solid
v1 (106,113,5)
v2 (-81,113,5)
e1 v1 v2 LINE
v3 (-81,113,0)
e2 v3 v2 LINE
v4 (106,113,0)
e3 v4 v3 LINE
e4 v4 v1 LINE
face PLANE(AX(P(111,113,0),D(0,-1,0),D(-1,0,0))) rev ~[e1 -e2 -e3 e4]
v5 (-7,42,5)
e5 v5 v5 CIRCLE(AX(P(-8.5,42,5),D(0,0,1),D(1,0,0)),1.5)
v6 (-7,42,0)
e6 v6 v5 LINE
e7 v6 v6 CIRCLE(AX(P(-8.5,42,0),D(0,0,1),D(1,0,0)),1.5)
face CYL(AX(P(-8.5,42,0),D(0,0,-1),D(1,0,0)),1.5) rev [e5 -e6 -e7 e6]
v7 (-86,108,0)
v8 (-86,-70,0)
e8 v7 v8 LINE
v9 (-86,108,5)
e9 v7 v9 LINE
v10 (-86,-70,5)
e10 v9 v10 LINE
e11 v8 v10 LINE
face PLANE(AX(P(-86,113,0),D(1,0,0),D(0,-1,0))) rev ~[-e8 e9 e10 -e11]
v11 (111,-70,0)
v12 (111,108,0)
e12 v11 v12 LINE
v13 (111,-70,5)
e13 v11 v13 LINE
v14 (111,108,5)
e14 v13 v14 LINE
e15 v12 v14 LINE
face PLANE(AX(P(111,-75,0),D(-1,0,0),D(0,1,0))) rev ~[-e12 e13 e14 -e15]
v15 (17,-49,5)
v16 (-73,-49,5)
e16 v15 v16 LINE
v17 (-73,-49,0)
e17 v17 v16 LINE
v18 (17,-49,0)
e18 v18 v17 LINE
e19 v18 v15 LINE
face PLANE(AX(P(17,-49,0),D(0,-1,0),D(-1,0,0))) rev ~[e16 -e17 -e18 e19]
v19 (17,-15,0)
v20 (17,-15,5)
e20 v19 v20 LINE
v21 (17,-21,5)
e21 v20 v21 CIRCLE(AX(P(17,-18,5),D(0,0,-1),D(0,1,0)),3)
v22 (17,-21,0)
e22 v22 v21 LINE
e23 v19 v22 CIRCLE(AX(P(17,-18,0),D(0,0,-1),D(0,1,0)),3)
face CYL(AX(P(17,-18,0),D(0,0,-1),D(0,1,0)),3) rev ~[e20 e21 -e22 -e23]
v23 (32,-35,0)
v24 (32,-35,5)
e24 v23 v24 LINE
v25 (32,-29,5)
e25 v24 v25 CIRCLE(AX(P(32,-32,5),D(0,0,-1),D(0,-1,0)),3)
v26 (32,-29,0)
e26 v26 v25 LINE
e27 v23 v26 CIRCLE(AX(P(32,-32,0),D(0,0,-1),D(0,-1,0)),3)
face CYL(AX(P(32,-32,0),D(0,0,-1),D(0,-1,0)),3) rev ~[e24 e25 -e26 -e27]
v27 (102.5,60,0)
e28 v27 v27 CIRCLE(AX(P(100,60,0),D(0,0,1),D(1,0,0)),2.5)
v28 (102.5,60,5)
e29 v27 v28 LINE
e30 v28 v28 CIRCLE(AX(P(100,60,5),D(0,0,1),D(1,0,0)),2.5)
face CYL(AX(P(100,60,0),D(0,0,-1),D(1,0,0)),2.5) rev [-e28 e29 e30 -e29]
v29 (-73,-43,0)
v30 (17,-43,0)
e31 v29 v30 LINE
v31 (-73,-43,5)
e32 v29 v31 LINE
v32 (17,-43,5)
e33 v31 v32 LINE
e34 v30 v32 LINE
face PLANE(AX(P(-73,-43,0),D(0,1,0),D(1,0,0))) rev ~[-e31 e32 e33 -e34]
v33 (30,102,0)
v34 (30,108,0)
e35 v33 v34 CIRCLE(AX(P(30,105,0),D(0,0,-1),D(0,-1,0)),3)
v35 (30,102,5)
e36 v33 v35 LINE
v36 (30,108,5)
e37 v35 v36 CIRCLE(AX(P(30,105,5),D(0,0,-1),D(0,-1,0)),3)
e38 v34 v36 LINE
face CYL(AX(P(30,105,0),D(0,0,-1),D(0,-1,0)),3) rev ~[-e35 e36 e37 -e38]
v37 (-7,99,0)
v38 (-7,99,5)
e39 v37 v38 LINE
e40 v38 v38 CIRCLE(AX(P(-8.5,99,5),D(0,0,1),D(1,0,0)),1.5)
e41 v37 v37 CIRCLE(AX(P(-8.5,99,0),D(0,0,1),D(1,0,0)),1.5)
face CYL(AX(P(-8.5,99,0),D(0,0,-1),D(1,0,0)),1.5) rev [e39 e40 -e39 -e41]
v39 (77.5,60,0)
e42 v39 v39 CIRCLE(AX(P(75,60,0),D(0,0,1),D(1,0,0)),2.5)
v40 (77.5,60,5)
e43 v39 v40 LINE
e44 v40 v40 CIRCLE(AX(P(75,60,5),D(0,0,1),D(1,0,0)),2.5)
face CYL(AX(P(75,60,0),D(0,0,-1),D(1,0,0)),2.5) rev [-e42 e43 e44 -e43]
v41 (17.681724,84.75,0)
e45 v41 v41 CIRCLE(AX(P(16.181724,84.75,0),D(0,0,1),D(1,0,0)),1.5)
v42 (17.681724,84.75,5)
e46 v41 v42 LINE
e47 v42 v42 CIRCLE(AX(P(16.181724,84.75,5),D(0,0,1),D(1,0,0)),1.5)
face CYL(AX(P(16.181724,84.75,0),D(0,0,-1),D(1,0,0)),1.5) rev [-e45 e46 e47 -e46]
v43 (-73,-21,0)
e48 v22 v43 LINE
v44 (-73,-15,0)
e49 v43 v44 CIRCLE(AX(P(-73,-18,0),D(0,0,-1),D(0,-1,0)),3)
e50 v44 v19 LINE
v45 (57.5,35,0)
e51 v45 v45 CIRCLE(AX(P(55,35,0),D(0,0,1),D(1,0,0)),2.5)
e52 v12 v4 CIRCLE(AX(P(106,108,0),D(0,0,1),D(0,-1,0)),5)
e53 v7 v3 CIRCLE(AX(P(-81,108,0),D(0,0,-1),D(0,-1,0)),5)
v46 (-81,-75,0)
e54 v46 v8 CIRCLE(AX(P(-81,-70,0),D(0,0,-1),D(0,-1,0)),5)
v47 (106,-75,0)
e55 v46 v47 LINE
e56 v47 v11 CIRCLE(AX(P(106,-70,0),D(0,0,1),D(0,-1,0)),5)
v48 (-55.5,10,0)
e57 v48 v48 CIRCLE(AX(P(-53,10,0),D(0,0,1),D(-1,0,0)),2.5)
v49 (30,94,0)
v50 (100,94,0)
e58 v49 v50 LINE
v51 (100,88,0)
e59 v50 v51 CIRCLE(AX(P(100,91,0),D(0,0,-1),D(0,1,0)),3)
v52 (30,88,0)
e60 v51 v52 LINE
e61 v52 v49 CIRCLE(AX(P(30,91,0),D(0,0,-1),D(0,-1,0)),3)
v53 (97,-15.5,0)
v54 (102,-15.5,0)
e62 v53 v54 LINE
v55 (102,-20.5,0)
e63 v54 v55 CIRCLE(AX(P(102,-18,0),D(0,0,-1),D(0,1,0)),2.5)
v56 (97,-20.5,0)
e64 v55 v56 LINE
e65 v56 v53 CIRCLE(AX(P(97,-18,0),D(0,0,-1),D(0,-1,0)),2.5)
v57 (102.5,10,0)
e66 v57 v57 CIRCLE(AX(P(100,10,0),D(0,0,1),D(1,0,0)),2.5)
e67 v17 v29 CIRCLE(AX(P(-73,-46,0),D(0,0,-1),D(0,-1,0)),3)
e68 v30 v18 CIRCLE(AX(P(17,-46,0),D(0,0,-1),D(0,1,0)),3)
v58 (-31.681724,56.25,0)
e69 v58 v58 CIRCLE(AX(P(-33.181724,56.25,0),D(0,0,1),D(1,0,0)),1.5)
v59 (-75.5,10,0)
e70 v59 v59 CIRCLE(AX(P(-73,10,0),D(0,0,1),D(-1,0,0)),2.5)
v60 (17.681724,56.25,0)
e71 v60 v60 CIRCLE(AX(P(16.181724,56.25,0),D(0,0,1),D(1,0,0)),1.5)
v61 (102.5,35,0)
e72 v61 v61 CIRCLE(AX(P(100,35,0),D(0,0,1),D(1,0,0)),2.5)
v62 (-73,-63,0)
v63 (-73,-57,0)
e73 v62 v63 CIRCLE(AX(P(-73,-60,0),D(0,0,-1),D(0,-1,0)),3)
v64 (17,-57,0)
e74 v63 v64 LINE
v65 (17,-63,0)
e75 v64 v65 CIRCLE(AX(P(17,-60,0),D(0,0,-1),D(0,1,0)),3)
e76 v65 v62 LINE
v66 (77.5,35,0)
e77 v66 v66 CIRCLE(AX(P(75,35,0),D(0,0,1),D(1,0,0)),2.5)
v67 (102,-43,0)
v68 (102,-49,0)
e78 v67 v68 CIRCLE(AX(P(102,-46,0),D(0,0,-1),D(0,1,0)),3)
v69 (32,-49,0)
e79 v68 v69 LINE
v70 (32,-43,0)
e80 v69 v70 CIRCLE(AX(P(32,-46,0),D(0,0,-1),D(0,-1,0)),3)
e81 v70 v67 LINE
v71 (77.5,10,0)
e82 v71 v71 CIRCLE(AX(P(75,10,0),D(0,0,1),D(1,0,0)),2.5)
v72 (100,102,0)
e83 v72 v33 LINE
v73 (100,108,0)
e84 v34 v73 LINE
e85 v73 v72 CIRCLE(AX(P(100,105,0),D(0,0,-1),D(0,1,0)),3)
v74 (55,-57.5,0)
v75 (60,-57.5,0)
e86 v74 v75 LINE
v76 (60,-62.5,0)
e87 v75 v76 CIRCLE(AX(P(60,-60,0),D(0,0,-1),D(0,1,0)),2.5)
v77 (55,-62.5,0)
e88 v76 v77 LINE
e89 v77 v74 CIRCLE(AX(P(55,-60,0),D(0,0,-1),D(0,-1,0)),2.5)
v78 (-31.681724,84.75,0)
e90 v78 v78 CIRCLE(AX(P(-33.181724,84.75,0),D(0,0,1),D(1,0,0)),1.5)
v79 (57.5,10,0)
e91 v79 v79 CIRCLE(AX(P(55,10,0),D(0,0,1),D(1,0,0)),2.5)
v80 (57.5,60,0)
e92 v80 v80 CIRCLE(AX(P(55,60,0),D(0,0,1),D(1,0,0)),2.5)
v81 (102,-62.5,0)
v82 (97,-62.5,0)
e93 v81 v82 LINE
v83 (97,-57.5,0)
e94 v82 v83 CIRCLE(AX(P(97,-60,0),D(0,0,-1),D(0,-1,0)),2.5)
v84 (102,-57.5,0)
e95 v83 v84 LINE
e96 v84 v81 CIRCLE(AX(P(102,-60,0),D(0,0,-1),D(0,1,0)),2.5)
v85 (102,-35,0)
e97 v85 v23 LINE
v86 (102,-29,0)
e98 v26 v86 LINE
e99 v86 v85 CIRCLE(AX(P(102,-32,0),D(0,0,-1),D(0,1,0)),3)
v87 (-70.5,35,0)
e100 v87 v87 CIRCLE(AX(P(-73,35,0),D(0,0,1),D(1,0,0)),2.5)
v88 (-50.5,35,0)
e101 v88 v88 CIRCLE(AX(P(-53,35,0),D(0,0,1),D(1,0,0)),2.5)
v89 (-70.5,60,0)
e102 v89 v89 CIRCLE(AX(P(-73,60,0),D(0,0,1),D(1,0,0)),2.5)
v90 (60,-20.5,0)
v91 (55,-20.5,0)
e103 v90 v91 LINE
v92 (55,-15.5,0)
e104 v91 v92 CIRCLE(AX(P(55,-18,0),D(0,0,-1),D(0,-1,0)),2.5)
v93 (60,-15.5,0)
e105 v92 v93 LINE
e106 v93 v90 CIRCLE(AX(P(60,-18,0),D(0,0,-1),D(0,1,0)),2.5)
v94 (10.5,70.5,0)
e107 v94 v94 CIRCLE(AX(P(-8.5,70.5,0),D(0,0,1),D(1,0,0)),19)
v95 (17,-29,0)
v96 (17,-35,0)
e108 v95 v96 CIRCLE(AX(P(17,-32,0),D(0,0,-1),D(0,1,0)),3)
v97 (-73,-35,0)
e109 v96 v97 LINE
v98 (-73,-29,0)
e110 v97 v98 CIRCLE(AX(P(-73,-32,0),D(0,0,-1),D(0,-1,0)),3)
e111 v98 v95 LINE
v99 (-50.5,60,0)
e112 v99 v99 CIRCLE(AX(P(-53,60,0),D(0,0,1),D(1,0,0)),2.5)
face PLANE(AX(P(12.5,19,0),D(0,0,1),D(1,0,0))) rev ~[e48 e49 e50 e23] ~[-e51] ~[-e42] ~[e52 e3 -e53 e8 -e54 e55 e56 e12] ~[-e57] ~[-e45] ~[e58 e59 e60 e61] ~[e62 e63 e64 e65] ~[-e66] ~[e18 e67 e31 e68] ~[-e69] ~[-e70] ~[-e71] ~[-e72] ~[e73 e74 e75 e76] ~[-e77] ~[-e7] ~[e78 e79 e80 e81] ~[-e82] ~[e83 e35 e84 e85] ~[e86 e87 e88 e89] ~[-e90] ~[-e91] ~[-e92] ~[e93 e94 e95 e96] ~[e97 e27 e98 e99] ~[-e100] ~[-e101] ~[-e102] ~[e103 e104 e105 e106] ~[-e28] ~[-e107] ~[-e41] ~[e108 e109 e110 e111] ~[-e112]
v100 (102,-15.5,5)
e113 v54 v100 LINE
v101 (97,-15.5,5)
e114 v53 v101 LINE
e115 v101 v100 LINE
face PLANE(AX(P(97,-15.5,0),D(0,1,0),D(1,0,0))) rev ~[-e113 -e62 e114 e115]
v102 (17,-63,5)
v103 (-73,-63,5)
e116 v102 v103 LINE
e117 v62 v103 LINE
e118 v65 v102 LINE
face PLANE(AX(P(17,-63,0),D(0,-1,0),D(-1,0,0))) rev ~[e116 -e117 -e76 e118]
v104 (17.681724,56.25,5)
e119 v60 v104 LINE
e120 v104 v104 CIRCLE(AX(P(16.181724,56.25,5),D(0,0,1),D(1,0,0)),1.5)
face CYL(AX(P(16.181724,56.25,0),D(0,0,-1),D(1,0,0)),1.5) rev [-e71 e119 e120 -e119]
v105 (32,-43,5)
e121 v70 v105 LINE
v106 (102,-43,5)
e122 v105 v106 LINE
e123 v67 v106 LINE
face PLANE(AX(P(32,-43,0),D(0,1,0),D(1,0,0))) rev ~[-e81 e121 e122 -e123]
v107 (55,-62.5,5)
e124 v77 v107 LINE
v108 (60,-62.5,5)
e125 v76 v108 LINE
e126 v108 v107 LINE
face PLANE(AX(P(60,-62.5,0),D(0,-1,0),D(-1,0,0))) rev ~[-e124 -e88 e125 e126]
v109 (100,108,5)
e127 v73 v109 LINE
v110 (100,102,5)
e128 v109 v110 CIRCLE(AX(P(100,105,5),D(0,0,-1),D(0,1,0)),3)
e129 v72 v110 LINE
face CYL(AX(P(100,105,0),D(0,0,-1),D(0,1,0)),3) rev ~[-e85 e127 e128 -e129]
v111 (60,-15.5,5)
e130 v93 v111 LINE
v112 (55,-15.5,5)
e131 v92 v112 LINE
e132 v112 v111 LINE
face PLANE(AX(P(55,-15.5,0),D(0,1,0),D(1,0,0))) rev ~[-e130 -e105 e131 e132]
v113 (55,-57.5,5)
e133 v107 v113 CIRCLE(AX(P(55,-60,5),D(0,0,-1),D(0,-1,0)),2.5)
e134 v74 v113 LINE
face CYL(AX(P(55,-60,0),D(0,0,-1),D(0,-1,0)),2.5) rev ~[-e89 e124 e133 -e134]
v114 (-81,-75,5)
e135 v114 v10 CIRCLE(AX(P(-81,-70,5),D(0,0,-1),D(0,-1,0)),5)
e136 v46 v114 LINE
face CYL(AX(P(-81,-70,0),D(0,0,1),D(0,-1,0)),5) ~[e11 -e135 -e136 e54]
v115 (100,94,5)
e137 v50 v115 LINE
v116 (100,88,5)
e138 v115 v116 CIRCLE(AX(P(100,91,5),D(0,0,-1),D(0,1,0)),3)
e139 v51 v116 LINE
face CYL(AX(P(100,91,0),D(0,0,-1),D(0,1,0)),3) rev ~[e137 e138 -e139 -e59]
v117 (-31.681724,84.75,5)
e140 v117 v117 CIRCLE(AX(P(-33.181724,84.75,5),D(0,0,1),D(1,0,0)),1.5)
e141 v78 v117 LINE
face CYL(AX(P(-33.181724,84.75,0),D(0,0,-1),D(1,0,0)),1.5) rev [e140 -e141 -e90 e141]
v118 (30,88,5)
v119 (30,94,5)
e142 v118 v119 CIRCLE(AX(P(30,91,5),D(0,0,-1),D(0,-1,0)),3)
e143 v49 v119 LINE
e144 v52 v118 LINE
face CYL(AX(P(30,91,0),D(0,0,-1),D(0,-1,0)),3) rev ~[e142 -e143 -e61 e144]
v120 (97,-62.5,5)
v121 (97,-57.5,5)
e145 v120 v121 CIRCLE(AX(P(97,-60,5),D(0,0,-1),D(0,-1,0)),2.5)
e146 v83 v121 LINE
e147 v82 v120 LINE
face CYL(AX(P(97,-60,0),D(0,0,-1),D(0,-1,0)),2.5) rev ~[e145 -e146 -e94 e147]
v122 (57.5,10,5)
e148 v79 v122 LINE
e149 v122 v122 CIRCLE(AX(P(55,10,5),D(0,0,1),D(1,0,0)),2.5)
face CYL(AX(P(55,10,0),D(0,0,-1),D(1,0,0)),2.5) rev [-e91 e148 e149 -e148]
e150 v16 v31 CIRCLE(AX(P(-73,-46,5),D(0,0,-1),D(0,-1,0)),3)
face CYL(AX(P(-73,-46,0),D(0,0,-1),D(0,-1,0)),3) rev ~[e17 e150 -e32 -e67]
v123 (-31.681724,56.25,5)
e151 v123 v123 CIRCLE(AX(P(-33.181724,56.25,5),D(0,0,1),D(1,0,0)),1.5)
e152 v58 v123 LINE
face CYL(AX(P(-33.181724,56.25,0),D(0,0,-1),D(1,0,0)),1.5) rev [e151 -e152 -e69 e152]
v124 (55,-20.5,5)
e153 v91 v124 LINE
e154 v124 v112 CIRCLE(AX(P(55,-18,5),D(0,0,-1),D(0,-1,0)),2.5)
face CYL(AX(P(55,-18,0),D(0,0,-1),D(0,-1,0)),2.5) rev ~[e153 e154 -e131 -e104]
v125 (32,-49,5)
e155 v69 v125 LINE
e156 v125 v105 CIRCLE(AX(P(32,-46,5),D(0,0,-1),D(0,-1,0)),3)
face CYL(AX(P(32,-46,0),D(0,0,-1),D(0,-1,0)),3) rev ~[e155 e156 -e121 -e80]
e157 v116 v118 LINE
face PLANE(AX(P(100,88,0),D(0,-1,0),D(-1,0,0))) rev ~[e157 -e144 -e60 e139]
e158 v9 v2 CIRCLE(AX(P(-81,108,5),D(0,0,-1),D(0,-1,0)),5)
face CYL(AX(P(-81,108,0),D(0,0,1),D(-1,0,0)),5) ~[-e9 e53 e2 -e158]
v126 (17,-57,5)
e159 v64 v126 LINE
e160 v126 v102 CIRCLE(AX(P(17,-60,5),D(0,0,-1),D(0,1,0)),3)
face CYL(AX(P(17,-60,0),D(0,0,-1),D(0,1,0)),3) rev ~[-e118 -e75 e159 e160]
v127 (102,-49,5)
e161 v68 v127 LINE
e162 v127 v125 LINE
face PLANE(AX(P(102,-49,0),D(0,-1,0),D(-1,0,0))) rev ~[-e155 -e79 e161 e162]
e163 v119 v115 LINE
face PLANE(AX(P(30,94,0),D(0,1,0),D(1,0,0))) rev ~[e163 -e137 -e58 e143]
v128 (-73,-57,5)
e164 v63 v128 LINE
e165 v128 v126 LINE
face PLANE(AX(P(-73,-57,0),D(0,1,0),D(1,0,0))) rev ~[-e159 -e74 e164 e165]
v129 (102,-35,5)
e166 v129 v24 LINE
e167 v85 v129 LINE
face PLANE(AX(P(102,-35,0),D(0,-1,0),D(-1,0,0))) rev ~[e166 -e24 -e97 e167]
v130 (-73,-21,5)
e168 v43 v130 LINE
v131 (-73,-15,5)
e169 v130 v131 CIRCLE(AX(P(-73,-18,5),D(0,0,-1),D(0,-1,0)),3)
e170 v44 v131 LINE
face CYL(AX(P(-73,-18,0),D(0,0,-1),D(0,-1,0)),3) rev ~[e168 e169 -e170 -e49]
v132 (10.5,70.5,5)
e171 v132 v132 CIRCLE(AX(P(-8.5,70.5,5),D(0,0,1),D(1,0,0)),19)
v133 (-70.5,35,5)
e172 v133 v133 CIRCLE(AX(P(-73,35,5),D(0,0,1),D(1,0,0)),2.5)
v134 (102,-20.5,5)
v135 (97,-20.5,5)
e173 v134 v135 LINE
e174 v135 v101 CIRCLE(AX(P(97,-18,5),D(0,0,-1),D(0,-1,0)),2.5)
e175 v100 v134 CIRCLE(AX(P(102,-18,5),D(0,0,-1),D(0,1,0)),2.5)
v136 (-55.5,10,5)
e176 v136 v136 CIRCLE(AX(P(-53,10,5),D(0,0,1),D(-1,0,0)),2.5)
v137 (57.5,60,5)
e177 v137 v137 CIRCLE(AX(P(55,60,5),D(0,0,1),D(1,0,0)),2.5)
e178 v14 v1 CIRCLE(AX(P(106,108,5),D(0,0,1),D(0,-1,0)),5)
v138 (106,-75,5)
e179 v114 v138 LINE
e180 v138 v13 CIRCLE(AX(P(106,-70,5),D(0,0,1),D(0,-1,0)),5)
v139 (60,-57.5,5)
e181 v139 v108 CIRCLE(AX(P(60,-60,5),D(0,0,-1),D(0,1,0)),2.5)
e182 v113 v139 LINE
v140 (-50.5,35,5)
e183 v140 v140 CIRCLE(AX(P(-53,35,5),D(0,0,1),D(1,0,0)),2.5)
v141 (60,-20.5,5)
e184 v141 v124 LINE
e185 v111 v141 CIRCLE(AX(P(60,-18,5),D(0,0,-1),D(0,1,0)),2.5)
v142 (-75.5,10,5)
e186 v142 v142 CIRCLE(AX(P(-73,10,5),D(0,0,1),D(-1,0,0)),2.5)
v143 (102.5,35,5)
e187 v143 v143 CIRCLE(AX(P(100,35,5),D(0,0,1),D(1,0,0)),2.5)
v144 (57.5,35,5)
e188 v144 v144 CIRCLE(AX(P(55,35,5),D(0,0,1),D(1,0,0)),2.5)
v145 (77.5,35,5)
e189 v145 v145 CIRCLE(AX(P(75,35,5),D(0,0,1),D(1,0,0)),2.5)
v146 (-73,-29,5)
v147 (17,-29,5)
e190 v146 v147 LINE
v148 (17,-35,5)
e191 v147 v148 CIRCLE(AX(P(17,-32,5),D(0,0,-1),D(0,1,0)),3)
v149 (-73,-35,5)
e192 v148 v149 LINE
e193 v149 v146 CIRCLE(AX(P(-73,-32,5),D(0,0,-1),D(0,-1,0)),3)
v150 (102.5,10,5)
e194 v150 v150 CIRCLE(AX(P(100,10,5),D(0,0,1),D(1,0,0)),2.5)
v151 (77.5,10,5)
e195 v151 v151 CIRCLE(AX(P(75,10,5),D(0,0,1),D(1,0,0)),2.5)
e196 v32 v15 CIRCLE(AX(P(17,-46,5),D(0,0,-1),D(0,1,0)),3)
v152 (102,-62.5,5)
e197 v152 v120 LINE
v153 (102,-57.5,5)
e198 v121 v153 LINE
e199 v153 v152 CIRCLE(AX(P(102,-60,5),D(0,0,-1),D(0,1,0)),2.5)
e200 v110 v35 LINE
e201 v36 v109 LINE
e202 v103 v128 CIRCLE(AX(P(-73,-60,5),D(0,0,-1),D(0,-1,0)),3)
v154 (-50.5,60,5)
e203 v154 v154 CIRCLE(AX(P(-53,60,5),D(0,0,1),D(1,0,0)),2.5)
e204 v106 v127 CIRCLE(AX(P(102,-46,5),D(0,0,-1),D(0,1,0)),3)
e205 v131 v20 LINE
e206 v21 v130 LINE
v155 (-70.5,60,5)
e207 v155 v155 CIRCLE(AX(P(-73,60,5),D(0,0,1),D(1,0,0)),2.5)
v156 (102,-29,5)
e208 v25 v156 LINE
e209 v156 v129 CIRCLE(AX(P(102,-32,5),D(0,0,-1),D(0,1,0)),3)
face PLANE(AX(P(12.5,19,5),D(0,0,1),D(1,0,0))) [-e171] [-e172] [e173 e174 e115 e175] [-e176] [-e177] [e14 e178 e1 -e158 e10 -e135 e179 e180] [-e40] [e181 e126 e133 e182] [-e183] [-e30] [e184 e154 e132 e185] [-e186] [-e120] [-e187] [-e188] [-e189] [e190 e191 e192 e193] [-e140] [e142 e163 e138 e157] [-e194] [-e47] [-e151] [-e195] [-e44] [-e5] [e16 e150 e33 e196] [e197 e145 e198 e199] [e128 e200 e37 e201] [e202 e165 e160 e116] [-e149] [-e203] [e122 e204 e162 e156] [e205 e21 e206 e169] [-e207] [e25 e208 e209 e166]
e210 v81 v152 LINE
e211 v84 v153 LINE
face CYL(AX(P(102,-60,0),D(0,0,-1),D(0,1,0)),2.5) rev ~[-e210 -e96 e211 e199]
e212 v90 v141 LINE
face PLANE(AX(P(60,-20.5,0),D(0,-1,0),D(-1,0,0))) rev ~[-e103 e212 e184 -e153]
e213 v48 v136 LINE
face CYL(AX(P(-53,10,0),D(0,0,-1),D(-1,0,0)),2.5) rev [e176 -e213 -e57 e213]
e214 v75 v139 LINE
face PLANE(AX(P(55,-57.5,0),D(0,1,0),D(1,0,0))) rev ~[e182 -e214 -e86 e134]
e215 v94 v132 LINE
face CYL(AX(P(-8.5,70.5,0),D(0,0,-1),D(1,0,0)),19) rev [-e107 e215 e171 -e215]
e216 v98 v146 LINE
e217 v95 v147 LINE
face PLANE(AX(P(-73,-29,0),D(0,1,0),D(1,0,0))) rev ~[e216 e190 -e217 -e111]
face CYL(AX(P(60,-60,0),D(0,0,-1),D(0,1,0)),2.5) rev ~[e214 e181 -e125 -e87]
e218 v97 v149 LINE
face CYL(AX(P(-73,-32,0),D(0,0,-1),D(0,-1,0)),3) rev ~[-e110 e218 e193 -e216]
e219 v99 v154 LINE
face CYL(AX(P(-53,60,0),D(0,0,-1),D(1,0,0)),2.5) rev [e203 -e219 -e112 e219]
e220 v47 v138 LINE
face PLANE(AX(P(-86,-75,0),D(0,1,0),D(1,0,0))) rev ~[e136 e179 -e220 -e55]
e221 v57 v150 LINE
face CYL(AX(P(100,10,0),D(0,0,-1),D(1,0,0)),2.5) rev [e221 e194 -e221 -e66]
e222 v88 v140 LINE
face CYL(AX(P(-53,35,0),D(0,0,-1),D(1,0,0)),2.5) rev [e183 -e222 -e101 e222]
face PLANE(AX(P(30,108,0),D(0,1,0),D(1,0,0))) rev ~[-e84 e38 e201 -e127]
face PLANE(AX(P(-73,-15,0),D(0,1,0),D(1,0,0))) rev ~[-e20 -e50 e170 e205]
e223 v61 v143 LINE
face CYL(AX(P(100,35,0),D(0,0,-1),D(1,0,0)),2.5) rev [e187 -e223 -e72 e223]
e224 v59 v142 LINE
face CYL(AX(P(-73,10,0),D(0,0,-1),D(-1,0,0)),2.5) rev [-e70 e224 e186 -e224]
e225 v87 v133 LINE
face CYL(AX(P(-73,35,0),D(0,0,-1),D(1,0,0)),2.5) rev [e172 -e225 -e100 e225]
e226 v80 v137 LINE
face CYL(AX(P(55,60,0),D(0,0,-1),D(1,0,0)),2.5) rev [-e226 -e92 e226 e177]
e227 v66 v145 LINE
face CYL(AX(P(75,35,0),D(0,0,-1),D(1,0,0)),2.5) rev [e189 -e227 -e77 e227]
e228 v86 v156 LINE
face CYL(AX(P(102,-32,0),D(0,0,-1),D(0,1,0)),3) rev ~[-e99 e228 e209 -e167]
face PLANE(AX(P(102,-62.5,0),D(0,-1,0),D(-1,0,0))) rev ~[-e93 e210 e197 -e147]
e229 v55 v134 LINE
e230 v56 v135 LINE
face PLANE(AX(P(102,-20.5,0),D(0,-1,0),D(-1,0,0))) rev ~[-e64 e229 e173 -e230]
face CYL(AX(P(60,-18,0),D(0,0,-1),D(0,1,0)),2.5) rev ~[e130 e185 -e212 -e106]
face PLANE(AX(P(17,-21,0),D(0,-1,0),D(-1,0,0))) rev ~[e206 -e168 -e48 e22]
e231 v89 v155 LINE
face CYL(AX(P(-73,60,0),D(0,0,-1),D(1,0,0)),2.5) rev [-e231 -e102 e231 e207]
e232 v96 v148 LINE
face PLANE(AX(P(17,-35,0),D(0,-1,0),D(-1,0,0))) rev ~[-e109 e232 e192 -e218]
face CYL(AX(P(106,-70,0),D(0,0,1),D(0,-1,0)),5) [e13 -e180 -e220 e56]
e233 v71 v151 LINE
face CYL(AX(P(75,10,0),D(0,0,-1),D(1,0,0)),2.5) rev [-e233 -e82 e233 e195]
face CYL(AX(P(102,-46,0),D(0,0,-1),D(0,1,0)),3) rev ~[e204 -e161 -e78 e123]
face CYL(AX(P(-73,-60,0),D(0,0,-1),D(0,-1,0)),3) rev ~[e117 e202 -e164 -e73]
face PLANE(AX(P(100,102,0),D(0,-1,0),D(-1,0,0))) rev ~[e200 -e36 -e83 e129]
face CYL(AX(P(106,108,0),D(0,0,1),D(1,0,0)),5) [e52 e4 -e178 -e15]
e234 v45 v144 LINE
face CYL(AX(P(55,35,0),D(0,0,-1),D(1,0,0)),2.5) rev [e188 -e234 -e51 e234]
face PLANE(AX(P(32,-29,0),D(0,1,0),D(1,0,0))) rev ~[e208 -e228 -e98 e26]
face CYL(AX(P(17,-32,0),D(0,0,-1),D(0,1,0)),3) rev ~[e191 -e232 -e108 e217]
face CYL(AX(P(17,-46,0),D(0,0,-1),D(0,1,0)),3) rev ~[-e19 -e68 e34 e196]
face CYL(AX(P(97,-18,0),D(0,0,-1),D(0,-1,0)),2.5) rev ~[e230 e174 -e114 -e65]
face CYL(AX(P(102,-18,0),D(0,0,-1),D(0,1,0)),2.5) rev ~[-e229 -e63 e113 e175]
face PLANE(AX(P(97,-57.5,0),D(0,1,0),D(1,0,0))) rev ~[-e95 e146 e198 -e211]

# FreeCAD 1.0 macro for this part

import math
import FreeCAD as App
import Part
import Sketcher
from FreeCAD import Vector


def edges_at(feature, points):
    """Names of the edges that pass closest to the given points."""
    edges = feature.Shape.Edges
    near = lambda p: min(range(len(edges)), key=lambda i: edges[i].distToShape(Part.Vertex(*p))[0])
    return sorted({f"Edge{near(p) + 1}" for p in points})

doc = App.newDocument("Part")
body = doc.addObject("PartDesign::Body", "Body")

# Sketch on XY plane
sketch1 = doc.addObject("Sketcher::SketchObject", "Sketch")
body.addObject(sketch1)
sketch1.AttachmentSupport = (doc.XY_Plane, [""])
sketch1.MapMode = "FlatFace"
sketch1.addGeometry(Part.LineSegment(Vector(-86, -75, 0), Vector(111, -75, 0)), False)
sketch1.addGeometry(Part.LineSegment(Vector(111, -75, 0), Vector(111, 113, 0)), False)
sketch1.addGeometry(Part.LineSegment(Vector(111, 113, 0), Vector(-86, 113, 0)), False)
sketch1.addGeometry(Part.LineSegment(Vector(-86, 113, 0), Vector(-86, -75, 0)), False)
sketch1.addGeometry(Part.ArcOfCircle(Part.Circle(Vector(-73, -60, 0), Vector(0, 0, 1), 3), math.radians(90), math.radians(270)), False)
sketch1.addGeometry(Part.LineSegment(Vector(-73, -57, 0), Vector(17, -57, 0)), False)
sketch1.addGeometry(Part.ArcOfCircle(Part.Circle(Vector(17, -60, 0), Vector(0, 0, 1), 3), math.radians(-90), math.radians(90)), False)
sketch1.addGeometry(Part.LineSegment(Vector(17, -63, 0), Vector(-73, -63, 0)), False)
sketch1.addGeometry(Part.ArcOfCircle(Part.Circle(Vector(-73, -46, 0), Vector(0, 0, 1), 3), math.radians(90), math.radians(270)), False)
sketch1.addGeometry(Part.LineSegment(Vector(-73, -43, 0), Vector(17, -43, 0)), False)
sketch1.addGeometry(Part.ArcOfCircle(Part.Circle(Vector(17, -46, 0), Vector(0, 0, 1), 3), math.radians(-90), math.radians(90)), False)
sketch1.addGeometry(Part.LineSegment(Vector(17, -49, 0), Vector(-73, -49, 0)), False)
sketch1.addGeometry(Part.ArcOfCircle(Part.Circle(Vector(-73, -32, 0), Vector(0, 0, 1), 3), math.radians(90), math.radians(270)), False)
sketch1.addGeometry(Part.LineSegment(Vector(-73, -29, 0), Vector(17, -29, 0)), False)
sketch1.addGeometry(Part.ArcOfCircle(Part.Circle(Vector(17, -32, 0), Vector(0, 0, 1), 3), math.radians(-90), math.radians(90)), False)
sketch1.addGeometry(Part.LineSegment(Vector(17, -35, 0), Vector(-73, -35, 0)), False)
sketch1.addGeometry(Part.Circle(Vector(-73, 10, 0), Vector(0, 0, 1), 2.5), False)
sketch1.addGeometry(Part.Circle(Vector(-53, 10, 0), Vector(0, 0, 1), 2.5), False)
sketch1.addGeometry(Part.ArcOfCircle(Part.Circle(Vector(-73, -18, 0), Vector(0, 0, 1), 3), math.radians(90), math.radians(270)), False)
sketch1.addGeometry(Part.LineSegment(Vector(-73, -15, 0), Vector(17, -15, 0)), False)
sketch1.addGeometry(Part.ArcOfCircle(Part.Circle(Vector(17, -18, 0), Vector(0, 0, 1), 3), math.radians(-90), math.radians(90)), False)
sketch1.addGeometry(Part.LineSegment(Vector(17, -21, 0), Vector(-73, -21, 0)), False)
sketch1.addGeometry(Part.ArcOfCircle(Part.Circle(Vector(55, -60, 0), Vector(0, 0, 1), 2.5), math.radians(90), math.radians(270)), False)
sketch1.addGeometry(Part.LineSegment(Vector(55, -57.5, 0), Vector(60, -57.5, 0)), False)
sketch1.addGeometry(Part.ArcOfCircle(Part.Circle(Vector(60, -60, 0), Vector(0, 0, 1), 2.5), math.radians(-90), math.radians(90)), False)
sketch1.addGeometry(Part.LineSegment(Vector(60, -62.5, 0), Vector(55, -62.5, 0)), False)
sketch1.addGeometry(Part.ArcOfCircle(Part.Circle(Vector(102, -46, 0), Vector(0, 0, 1), 3), math.radians(-90), math.radians(90)), False)
sketch1.addGeometry(Part.LineSegment(Vector(102, -49, 0), Vector(32, -49, 0)), False)
sketch1.addGeometry(Part.ArcOfCircle(Part.Circle(Vector(32, -46, 0), Vector(0, 0, 1), 3), math.radians(90), math.radians(270)), False)
sketch1.addGeometry(Part.LineSegment(Vector(32, -43, 0), Vector(102, -43, 0)), False)
sketch1.addGeometry(Part.ArcOfCircle(Part.Circle(Vector(97, -60, 0), Vector(0, 0, 1), 2.5), math.radians(90), math.radians(270)), False)
sketch1.addGeometry(Part.LineSegment(Vector(97, -57.5, 0), Vector(102, -57.5, 0)), False)
sketch1.addGeometry(Part.ArcOfCircle(Part.Circle(Vector(102, -60, 0), Vector(0, 0, 1), 2.5), math.radians(-90), math.radians(90)), False)
sketch1.addGeometry(Part.LineSegment(Vector(102, -62.5, 0), Vector(97, -62.5, 0)), False)
sketch1.addGeometry(Part.ArcOfCircle(Part.Circle(Vector(102, -32, 0), Vector(0, 0, 1), 3), math.radians(-90), math.radians(90)), False)
sketch1.addGeometry(Part.LineSegment(Vector(102, -35, 0), Vector(32, -35, 0)), False)
sketch1.addGeometry(Part.ArcOfCircle(Part.Circle(Vector(32, -32, 0), Vector(0, 0, 1), 3), math.radians(90), math.radians(270)), False)
sketch1.addGeometry(Part.LineSegment(Vector(32, -29, 0), Vector(102, -29, 0)), False)
sketch1.addGeometry(Part.ArcOfCircle(Part.Circle(Vector(55, -18, 0), Vector(0, 0, 1), 2.5), math.radians(90), math.radians(270)), False)
sketch1.addGeometry(Part.LineSegment(Vector(55, -15.5, 0), Vector(60, -15.5, 0)), False)
sketch1.addGeometry(Part.ArcOfCircle(Part.Circle(Vector(60, -18, 0), Vector(0, 0, 1), 2.5), math.radians(-90), math.radians(90)), False)
sketch1.addGeometry(Part.LineSegment(Vector(60, -20.5, 0), Vector(55, -20.5, 0)), False)
sketch1.addGeometry(Part.Circle(Vector(55, 10, 0), Vector(0, 0, 1), 2.5), False)
sketch1.addGeometry(Part.ArcOfCircle(Part.Circle(Vector(97, -18, 0), Vector(0, 0, 1), 2.5), math.radians(90), math.radians(270)), False)
sketch1.addGeometry(Part.LineSegment(Vector(97, -15.5, 0), Vector(102, -15.5, 0)), False)
sketch1.addGeometry(Part.ArcOfCircle(Part.Circle(Vector(102, -18, 0), Vector(0, 0, 1), 2.5), math.radians(-90), math.radians(90)), False)
sketch1.addGeometry(Part.LineSegment(Vector(102, -20.5, 0), Vector(97, -20.5, 0)), False)
sketch1.addGeometry(Part.Circle(Vector(75, 10, 0), Vector(0, 0, 1), 2.5), False)
sketch1.addGeometry(Part.Circle(Vector(100, 10, 0), Vector(0, 0, 1), 2.5), False)
sketch1.addGeometry(Part.Circle(Vector(-73, 35, 0), Vector(0, 0, 1), 2.5), False)
sketch1.addGeometry(Part.Circle(Vector(-53, 35, 0), Vector(0, 0, 1), 2.5), False)
sketch1.addGeometry(Part.Circle(Vector(-73, 60, 0), Vector(0, 0, 1), 2.5), False)
sketch1.addGeometry(Part.Circle(Vector(-53, 60, 0), Vector(0, 0, 1), 2.5), False)
sketch1.addGeometry(Part.Circle(Vector(-33.181724, 56.25, 0), Vector(0, 0, 1), 1.5), False)
sketch1.addGeometry(Part.Circle(Vector(-8.5, 42, 0), Vector(0, 0, 1), 1.5), False)
sketch1.addGeometry(Part.Circle(Vector(-33.181724, 84.75, 0), Vector(0, 0, 1), 1.5), False)
sketch1.addGeometry(Part.Circle(Vector(-8.5, 70.5, 0), Vector(0, 0, 1), 19), False)
sketch1.addGeometry(Part.Circle(Vector(-8.5, 99, 0), Vector(0, 0, 1), 1.5), False)
sketch1.addGeometry(Part.Circle(Vector(55, 35, 0), Vector(0, 0, 1), 2.5), False)
sketch1.addGeometry(Part.Circle(Vector(16.181724, 56.25, 0), Vector(0, 0, 1), 1.5), False)
sketch1.addGeometry(Part.Circle(Vector(55, 60, 0), Vector(0, 0, 1), 2.5), False)
sketch1.addGeometry(Part.Circle(Vector(75, 35, 0), Vector(0, 0, 1), 2.5), False)
sketch1.addGeometry(Part.Circle(Vector(100, 35, 0), Vector(0, 0, 1), 2.5), False)
sketch1.addGeometry(Part.Circle(Vector(75, 60, 0), Vector(0, 0, 1), 2.5), False)
sketch1.addGeometry(Part.Circle(Vector(100, 60, 0), Vector(0, 0, 1), 2.5), False)
sketch1.addGeometry(Part.Circle(Vector(16.181724, 84.75, 0), Vector(0, 0, 1), 1.5), False)
sketch1.addGeometry(Part.ArcOfCircle(Part.Circle(Vector(100, 91, 0), Vector(0, 0, 1), 3), math.radians(-90), math.radians(90)), False)
sketch1.addGeometry(Part.LineSegment(Vector(100, 88, 0), Vector(30, 88, 0)), False)
sketch1.addGeometry(Part.ArcOfCircle(Part.Circle(Vector(30, 91, 0), Vector(0, 0, 1), 3), math.radians(90), math.radians(270)), False)
sketch1.addGeometry(Part.LineSegment(Vector(30, 94, 0), Vector(100, 94, 0)), False)
sketch1.addGeometry(Part.ArcOfCircle(Part.Circle(Vector(100, 105, 0), Vector(0, 0, 1), 3), math.radians(-90), math.radians(90)), False)
sketch1.addGeometry(Part.LineSegment(Vector(100, 102, 0), Vector(30, 102, 0)), False)
sketch1.addGeometry(Part.ArcOfCircle(Part.Circle(Vector(30, 105, 0), Vector(0, 0, 1), 3), math.radians(90), math.radians(270)), False)
sketch1.addGeometry(Part.LineSegment(Vector(30, 108, 0), Vector(100, 108, 0)), False)
sketch1.addConstraint(Sketcher.Constraint("Coincident", 0, 2, 1, 1))
sketch1.addConstraint(Sketcher.Constraint("Coincident", 1, 2, 2, 1))
sketch1.addConstraint(Sketcher.Constraint("Coincident", 2, 2, 3, 1))
sketch1.addConstraint(Sketcher.Constraint("Coincident", 3, 2, 0, 1))
sketch1.addConstraint(Sketcher.Constraint("Tangent", 4, 1, 5, 1))
sketch1.addConstraint(Sketcher.Constraint("Tangent", 5, 2, 6, 2))
sketch1.addConstraint(Sketcher.Constraint("Tangent", 6, 1, 7, 1))
sketch1.addConstraint(Sketcher.Constraint("Tangent", 7, 2, 4, 2))
sketch1.addConstraint(Sketcher.Constraint("Tangent", 8, 1, 9, 1))
sketch1.addConstraint(Sketcher.Constraint("Tangent", 9, 2, 10, 2))
sketch1.addConstraint(Sketcher.Constraint("Tangent", 10, 1, 11, 1))
sketch1.addConstraint(Sketcher.Constraint("Tangent", 11, 2, 8, 2))
sketch1.addConstraint(Sketcher.Constraint("Tangent", 12, 1, 13, 1))
sketch1.addConstraint(Sketcher.Constraint("Tangent", 13, 2, 14, 2))
sketch1.addConstraint(Sketcher.Constraint("Tangent", 14, 1, 15, 1))
sketch1.addConstraint(Sketcher.Constraint("Tangent", 15, 2, 12, 2))
sketch1.addConstraint(Sketcher.Constraint("Tangent", 18, 1, 19, 1))
sketch1.addConstraint(Sketcher.Constraint("Tangent", 19, 2, 20, 2))
sketch1.addConstraint(Sketcher.Constraint("Tangent", 20, 1, 21, 1))
sketch1.addConstraint(Sketcher.Constraint("Tangent", 21, 2, 18, 2))
sketch1.addConstraint(Sketcher.Constraint("Tangent", 22, 1, 23, 1))
sketch1.addConstraint(Sketcher.Constraint("Tangent", 23, 2, 24, 2))
sketch1.addConstraint(Sketcher.Constraint("Tangent", 24, 1, 25, 1))
sketch1.addConstraint(Sketcher.Constraint("Tangent", 25, 2, 22, 2))
sketch1.addConstraint(Sketcher.Constraint("Tangent", 26, 1, 27, 1))
sketch1.addConstraint(Sketcher.Constraint("Tangent", 27, 2, 28, 2))
sketch1.addConstraint(Sketcher.Constraint("Tangent", 28, 1, 29, 1))
sketch1.addConstraint(Sketcher.Constraint("Tangent", 29, 2, 26, 2))
sketch1.addConstraint(Sketcher.Constraint("Tangent", 30, 1, 31, 1))
sketch1.addConstraint(Sketcher.Constraint("Tangent", 31, 2, 32, 2))
sketch1.addConstraint(Sketcher.Constraint("Tangent", 32, 1, 33, 1))
sketch1.addConstraint(Sketcher.Constraint("Tangent", 33, 2, 30, 2))
sketch1.addConstraint(Sketcher.Constraint("Tangent", 34, 1, 35, 1))
sketch1.addConstraint(Sketcher.Constraint("Tangent", 35, 2, 36, 2))
sketch1.addConstraint(Sketcher.Constraint("Tangent", 36, 1, 37, 1))
sketch1.addConstraint(Sketcher.Constraint("Tangent", 37, 2, 34, 2))
sketch1.addConstraint(Sketcher.Constraint("Tangent", 38, 1, 39, 1))
sketch1.addConstraint(Sketcher.Constraint("Tangent", 39, 2, 40, 2))
sketch1.addConstraint(Sketcher.Constraint("Tangent", 40, 1, 41, 1))
sketch1.addConstraint(Sketcher.Constraint("Tangent", 41, 2, 38, 2))
sketch1.addConstraint(Sketcher.Constraint("Tangent", 43, 1, 44, 1))
sketch1.addConstraint(Sketcher.Constraint("Tangent", 44, 2, 45, 2))
sketch1.addConstraint(Sketcher.Constraint("Tangent", 45, 1, 46, 1))
sketch1.addConstraint(Sketcher.Constraint("Tangent", 46, 2, 43, 2))
sketch1.addConstraint(Sketcher.Constraint("Tangent", 66, 1, 67, 1))
sketch1.addConstraint(Sketcher.Constraint("Tangent", 67, 2, 68, 2))
sketch1.addConstraint(Sketcher.Constraint("Tangent", 68, 1, 69, 1))
sketch1.addConstraint(Sketcher.Constraint("Tangent", 69, 2, 66, 2))
sketch1.addConstraint(Sketcher.Constraint("Tangent", 70, 1, 71, 1))
sketch1.addConstraint(Sketcher.Constraint("Tangent", 71, 2, 72, 2))
sketch1.addConstraint(Sketcher.Constraint("Tangent", 72, 1, 73, 1))
sketch1.addConstraint(Sketcher.Constraint("Tangent", 73, 2, 70, 2))
sketch1.addConstraint(Sketcher.Constraint("Horizontal", 0))
sketch1.addConstraint(Sketcher.Constraint("Vertical", 1))
sketch1.addConstraint(Sketcher.Constraint("Horizontal", 2))
sketch1.addConstraint(Sketcher.Constraint("Vertical", 3))
sketch1.addConstraint(Sketcher.Constraint("Horizontal", 5))
sketch1.addConstraint(Sketcher.Constraint("Horizontal", 7))
sketch1.addConstraint(Sketcher.Constraint("Horizontal", 9))
sketch1.addConstraint(Sketcher.Constraint("Horizontal", 11))
sketch1.addConstraint(Sketcher.Constraint("Horizontal", 13))
sketch1.addConstraint(Sketcher.Constraint("Horizontal", 15))
sketch1.addConstraint(Sketcher.Constraint("Horizontal", 19))
sketch1.addConstraint(Sketcher.Constraint("Horizontal", 21))
sketch1.addConstraint(Sketcher.Constraint("Horizontal", 23))
sketch1.addConstraint(Sketcher.Constraint("Horizontal", 25))
sketch1.addConstraint(Sketcher.Constraint("Horizontal", 27))
sketch1.addConstraint(Sketcher.Constraint("Horizontal", 29))
sketch1.addConstraint(Sketcher.Constraint("Horizontal", 31))
sketch1.addConstraint(Sketcher.Constraint("Horizontal", 33))
sketch1.addConstraint(Sketcher.Constraint("Horizontal", 35))
sketch1.addConstraint(Sketcher.Constraint("Horizontal", 37))
sketch1.addConstraint(Sketcher.Constraint("Horizontal", 39))
sketch1.addConstraint(Sketcher.Constraint("Horizontal", 41))
sketch1.addConstraint(Sketcher.Constraint("Horizontal", 44))
sketch1.addConstraint(Sketcher.Constraint("Horizontal", 46))
sketch1.addConstraint(Sketcher.Constraint("Horizontal", 67))
sketch1.addConstraint(Sketcher.Constraint("Horizontal", 69))
sketch1.addConstraint(Sketcher.Constraint("Horizontal", 71))
sketch1.addConstraint(Sketcher.Constraint("Horizontal", 73))
sketch1.addConstraint(Sketcher.Constraint("Equal", 6, 8))
sketch1.addConstraint(Sketcher.Constraint("Equal", 10, 12))
sketch1.addConstraint(Sketcher.Constraint("Equal", 16, 17))
sketch1.addConstraint(Sketcher.Constraint("Equal", 14, 18))
sketch1.addConstraint(Sketcher.Constraint("Equal", 17, 22))
sketch1.addConstraint(Sketcher.Constraint("Equal", 20, 26))
sketch1.addConstraint(Sketcher.Constraint("Equal", 24, 30))
sketch1.addConstraint(Sketcher.Constraint("Equal", 28, 34))
sketch1.addConstraint(Sketcher.Constraint("Equal", 32, 38))
sketch1.addConstraint(Sketcher.Constraint("Equal", 40, 42))
sketch1.addConstraint(Sketcher.Constraint("Equal", 42, 43))
sketch1.addConstraint(Sketcher.Constraint("Equal", 45, 47))
sketch1.addConstraint(Sketcher.Constraint("Equal", 47, 48))
sketch1.addConstraint(Sketcher.Constraint("Equal", 48, 49))
sketch1.addConstraint(Sketcher.Constraint("Equal", 49, 50))
sketch1.addConstraint(Sketcher.Constraint("Equal", 50, 51))
sketch1.addConstraint(Sketcher.Constraint("Equal", 51, 52))
sketch1.addConstraint(Sketcher.Constraint("Equal", 53, 54))
sketch1.addConstraint(Sketcher.Constraint("Equal", 54, 55))
sketch1.addConstraint(Sketcher.Constraint("Equal", 55, 57))
sketch1.addConstraint(Sketcher.Constraint("Equal", 52, 58))
sketch1.addConstraint(Sketcher.Constraint("Equal", 57, 59))
sketch1.addConstraint(Sketcher.Constraint("Equal", 58, 60))
sketch1.addConstraint(Sketcher.Constraint("Equal", 60, 61))
sketch1.addConstraint(Sketcher.Constraint("Equal", 61, 62))
sketch1.addConstraint(Sketcher.Constraint("Equal", 62, 63))
sketch1.addConstraint(Sketcher.Constraint("Equal", 63, 64))
sketch1.addConstraint(Sketcher.Constraint("Equal", 59, 65))
sketch1.addConstraint(Sketcher.Constraint("Equal", 36, 66))
sketch1.addConstraint(Sketcher.Constraint("Equal", 68, 70))
sketch1.addConstraint(Sketcher.Constraint("Symmetric", 4, 3, 51, 3, -1))
sketch1.addConstraint(Sketcher.Constraint("Symmetric", 22, 3, 60, 3, -1))
sketch1.addConstraint(Sketcher.Constraint("Horizontal", 16, 3, 17, 3))
sketch1.addConstraint(Sketcher.Constraint("Horizontal", 6, 3, 22, 3))
sketch1.addConstraint(Sketcher.Constraint("Horizontal", 10, 3, 26, 3))
sketch1.addConstraint(Sketcher.Constraint("Horizontal", 24, 3, 30, 3))
sketch1.addConstraint(Sketcher.Constraint("Horizontal", 14, 3, 34, 3))
sketch1.addConstraint(Sketcher.Constraint("Horizontal", 20, 3, 38, 3))
sketch1.addConstraint(Sketcher.Constraint("Horizontal", 17, 3, 42, 3))
sketch1.addConstraint(Sketcher.Constraint("Horizontal", 40, 3, 43, 3))
sketch1.addConstraint(Sketcher.Constraint("Horizontal", 42, 3, 47, 3))
sketch1.addConstraint(Sketcher.Constraint("Horizontal", 47, 3, 48, 3))
sketch1.addConstraint(Sketcher.Constraint("Horizontal", 49, 3, 50, 3))
sketch1.addConstraint(Sketcher.Constraint("Horizontal", 51, 3, 52, 3))
sketch1.addConstraint(Sketcher.Constraint("Horizontal", 50, 3, 58, 3))
sketch1.addConstraint(Sketcher.Constraint("Horizontal", 53, 3, 59, 3))
sketch1.addConstraint(Sketcher.Constraint("Horizontal", 58, 3, 61, 3))
sketch1.addConstraint(Sketcher.Constraint("Horizontal", 61, 3, 62, 3))
sketch1.addConstraint(Sketcher.Constraint("Horizontal", 60, 3, 63, 3))
sketch1.addConstraint(Sketcher.Constraint("Horizontal", 63, 3, 64, 3))
sketch1.addConstraint(Sketcher.Constraint("Horizontal", 55, 3, 65, 3))
sketch1.addConstraint(Sketcher.Constraint("Vertical", 4, 3, 8, 3))
sketch1.addConstraint(Sketcher.Constraint("Vertical", 6, 3, 10, 3))
sketch1.addConstraint(Sketcher.Constraint("Vertical", 8, 3, 12, 3))
sketch1.addConstraint(Sketcher.Constraint("Vertical", 10, 3, 14, 3))
sketch1.addConstraint(Sketcher.Constraint("Vertical", 12, 3, 16, 3))
sketch1.addConstraint(Sketcher.Constraint("Vertical", 16, 3, 18, 3))
sketch1.addConstraint(Sketcher.Constraint("Vertical", 14, 3, 20, 3))
sketch1.addConstraint(Sketcher.Constraint("Vertical", 26, 3, 32, 3))
sketch1.addConstraint(Sketcher.Constraint("Vertical", 32, 3, 34, 3))
sketch1.addConstraint(Sketcher.Constraint("Vertical", 28, 3, 36, 3))
sketch1.addConstraint(Sketcher.Constraint("Vertical", 22, 3, 38, 3))
sketch1.addConstraint(Sketcher.Constraint("Vertical", 24, 3, 40, 3))
sketch1.addConstraint(Sketcher.Constraint("Vertical", 38, 3, 42, 3))
sketch1.addConstraint(Sketcher.Constraint("Vertical", 30, 3, 43, 3))
sketch1.addConstraint(Sketcher.Constraint("Vertical", 34, 3, 45, 3))
sketch1.addConstraint(Sketcher.Constraint("Vertical", 18, 3, 49, 3))
sketch1.addConstraint(Sketcher.Constraint("Vertical", 17, 3, 50, 3))
sketch1.addConstraint(Sketcher.Constraint("Vertical", 50, 3, 52, 3))
sketch1.addConstraint(Sketcher.Constraint("Vertical", 53, 3, 55, 3))
sketch1.addConstraint(Sketcher.Constraint("Vertical", 54, 3, 56, 3))
sketch1.addConstraint(Sketcher.Constraint("Vertical", 56, 3, 57, 3))
sketch1.addConstraint(Sketcher.Constraint("Vertical", 42, 3, 58, 3))
sketch1.addConstraint(Sketcher.Constraint("Vertical", 47, 3, 61, 3))
sketch1.addConstraint(Sketcher.Constraint("Vertical", 48, 3, 62, 3))
sketch1.addConstraint(Sketcher.Constraint("Vertical", 61, 3, 63, 3))
sketch1.addConstraint(Sketcher.Constraint("Vertical", 62, 3, 64, 3))
sketch1.addConstraint(Sketcher.Constraint("Vertical", 59, 3, 65, 3))
sketch1.addConstraint(Sketcher.Constraint("Vertical", 64, 3, 66, 3))
sketch1.addConstraint(Sketcher.Constraint("Vertical", 66, 3, 70, 3))
sketch1.addConstraint(Sketcher.Constraint("Vertical", 68, 3, 72, 3))
sketch1.addConstraint(Sketcher.Constraint("Equal", 25, 31))
sketch1.addConstraint(Sketcher.Constraint("Equal", 37, 67))
sketch1.addConstraint(Sketcher.Constraint("Diameter", 16, 5.0))
sketch1.addConstraint(Sketcher.Constraint("Diameter", 53, 3.0))
sketch1.addConstraint(Sketcher.Constraint("Diameter", 56, 38.0))
sketch1.addConstraint(Sketcher.Constraint("Radius", 4, 3.0))
sketch1.addConstraint(Sketcher.Constraint("DistanceX", 0, 1, 0, 2, 197.0))
sketch1.addConstraint(Sketcher.Constraint("DistanceX", 5, 1, 5, 2, 90.0))
sketch1.addConstraint(Sketcher.Constraint("DistanceX", 23, 1, 23, 2, 5.0))
sketch1.addConstraint(Sketcher.Constraint("DistanceX", 27, 2, 27, 1, 70.0))
sketch1.addConstraint(Sketcher.Constraint("DistanceY", 1, 1, 1, 2, 188.0))
sketch1.addConstraint(Sketcher.Constraint("DistanceX", 4, 3, -1, 1, 73.0))
sketch1.addConstraint(Sketcher.Constraint("DistanceY", 4, 3, -1, 1, 60.0))
sketch1.addConstraint(Sketcher.Constraint("DistanceY", 8, 3, -1, 1, 46.0))
sketch1.addConstraint(Sketcher.Constraint("DistanceY", 12, 3, -1, 1, 32.0))
sketch1.addConstraint(Sketcher.Constraint("DistanceY", -1, 1, 16, 3, 10.0))
sketch1.addConstraint(Sketcher.Constraint("DistanceX", 17, 3, -1, 1, 53.0))
sketch1.addConstraint(Sketcher.Constraint("DistanceY", 18, 3, -1, 1, 18.0))
sketch1.addConstraint(Sketcher.Constraint("DistanceX", -1, 1, 22, 3, 55.0))
sketch1.addConstraint(Sketcher.Constraint("DistanceX", -1, 1, 26, 3, 102.0))
sketch1.addConstraint(Sketcher.Constraint("DistanceX", -1, 1, 47, 3, 75.0))
sketch1.addConstraint(Sketcher.Constraint("DistanceX", -1, 1, 48, 3, 100.0))
sketch1.addConstraint(Sketcher.Constraint("DistanceY", -1, 1, 49, 3, 35.0))
sketch1.addConstraint(Sketcher.Constraint("DistanceY", -1, 1, 54, 3, 42.0))
sketch1.addConstraint(Sketcher.Constraint("DistanceY", -1, 1, 57, 3, 99.0))
sketch1.addConstraint(Sketcher.Constraint("DistanceY", -1, 1, 66, 3, 91.0))
sketch1.addConstraint(Sketcher.Constraint("DistanceY", -1, 1, 70, 3, 105.0))
sketch1.addConstraint(Sketcher.Constraint("DistanceX", -1, 1, 0, 2, 111.0))
sketch1.addConstraint(Sketcher.Constraint("DistanceY", 0, 2, -1, 1, 75.0))
sketch1.addConstraint(Sketcher.Constraint("DistanceX", 54, 3, -1, 1, 8.5))
sketch1.addConstraint(Sketcher.Constraint("DistanceY", -1, 1, 56, 3, 70.5))
sketch1.addConstraint(Sketcher.Constraint("DistanceY", -1, 1, 53, 3, 56.25))
sketch1.addConstraint(Sketcher.Constraint("DistanceY", -1, 1, 55, 3, 84.75))
sketch1.addConstraint(Sketcher.Constraint("DistanceX", 53, 3, -1, 1, 33.181724))
sketch1.addConstraint(Sketcher.Constraint("DistanceX", -1, 1, 59, 3, 16.181724))
pad1 = doc.addObject("PartDesign::Pad", "Pad")
body.addObject(pad1)
pad1.Profile = sketch1
pad1.Length = 5
doc.recompute()

fillet = doc.addObject("PartDesign::Fillet", "Fillet")
body.addObject(fillet)
fillet.Base = (pad1, edges_at(pad1, [
    (-86, 113, 2.5),
    (111, 113, 2.5),
    (111, -75, 2.5),
    (-86, -75, 2.5),
]))
fillet.Radius = 5

doc.recompute()
